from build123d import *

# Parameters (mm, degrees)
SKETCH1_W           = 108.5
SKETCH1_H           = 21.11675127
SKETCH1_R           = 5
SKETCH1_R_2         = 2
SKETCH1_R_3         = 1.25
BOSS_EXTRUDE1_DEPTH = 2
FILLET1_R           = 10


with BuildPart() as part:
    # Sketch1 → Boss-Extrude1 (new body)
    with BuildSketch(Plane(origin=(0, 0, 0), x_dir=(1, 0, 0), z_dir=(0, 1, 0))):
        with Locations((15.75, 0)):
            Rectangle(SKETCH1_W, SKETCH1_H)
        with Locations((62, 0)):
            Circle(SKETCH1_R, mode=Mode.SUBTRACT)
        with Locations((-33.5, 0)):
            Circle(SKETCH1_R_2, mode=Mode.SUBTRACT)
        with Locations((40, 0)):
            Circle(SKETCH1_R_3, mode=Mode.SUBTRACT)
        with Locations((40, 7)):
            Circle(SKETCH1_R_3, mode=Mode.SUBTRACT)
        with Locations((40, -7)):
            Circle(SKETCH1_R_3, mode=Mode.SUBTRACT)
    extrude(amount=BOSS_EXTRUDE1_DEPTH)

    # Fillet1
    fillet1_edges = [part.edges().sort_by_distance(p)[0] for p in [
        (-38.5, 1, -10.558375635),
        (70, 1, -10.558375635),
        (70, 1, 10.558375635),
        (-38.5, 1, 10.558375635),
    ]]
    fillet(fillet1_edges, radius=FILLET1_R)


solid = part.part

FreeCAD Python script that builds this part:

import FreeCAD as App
import Part
import Sketcher
Q = App.Units.Quantity


def edges_at(feature, points):
    """Names of the edges that pass closest to the given points."""
    edges = feature.Shape.Edges
    near = lambda p: min(range(len(edges)), key=lambda i: edges[i].distToShape(Part.Vertex(*p))[0])
    return sorted({f"Edge{near(p) + 1}" for p in points})


def add_polygon(sketch, points):
    """Adds a closed chain of lines whose ends are joined by coincident constraints."""
    first, n = sketch.GeometryCount, len(points)
    for a, b in zip(points, points[1:] + points[:1]):
        sketch.addGeometry(Part.LineSegment(App.Vector(*a, 0), App.Vector(*b, 0)), False)
    for i in range(n):
        sketch.addConstraint(Sketcher.Constraint("Coincident", first + i, 2, first + (i + 1) % n, 1))

doc = App.newDocument("Part")
body = doc.addObject("PartDesign::Body", "Body")

# Sketch on XZ plane
sketch1 = body.newObject("Sketcher::SketchObject", "Sketch")
sketch1.AttachmentSupport = (doc.getObject("XZ_Plane"), [""])
sketch1.MapMode = "FlatFace"
add_polygon(sketch1, [(-38.5, -10.6), (-38.5, 10.6), (70, 10.6), (70, -10.6)])  # lines 0-3
sketch1.addGeometry(Part.Circle(App.Vector(40, 7, 0), App.Vector(0, 0, 1), 1.2), False)  # 4
sketch1.addGeometry(Part.Circle(App.Vector(-33.5, 0, 0), App.Vector(0, 0, 1), 2), False)  # 5
sketch1.addGeometry(Part.Circle(App.Vector(40, 0, 0), App.Vector(0, 0, 1), 1.2), False)  # 6
sketch1.addGeometry(Part.Circle(App.Vector(62, 0, 0), App.Vector(0, 0, 1), 5), False)  # 7
sketch1.addGeometry(Part.Circle(App.Vector(40, -7, 0), App.Vector(0, 0, 1), 1.2), False)  # 8
sketch1.addConstraint([
    Sketcher.Constraint("Vertical", 0),
    Sketcher.Constraint("Horizontal", 1),
    Sketcher.Constraint("Vertical", 2),
    Sketcher.Constraint("Horizontal", 3),
    Sketcher.Constraint("Equal", 4, 6),
    Sketcher.Constraint("Equal", 6, 8),
    Sketcher.Constraint("Symmetric", 4, 3, 8, 3, -1),
    Sketcher.Constraint("PointOnObject", 5, 3, -1),
    Sketcher.Constraint("PointOnObject", 6, 3, -1),
    Sketcher.Constraint("PointOnObject", 7, 3, -1),
    Sketcher.Constraint("Vertical", 4, 3, 6, 3),
    Sketcher.Constraint("Diameter", 5, Q("4 mm")),
    Sketcher.Constraint("Diameter", 7, Q("10 mm")),
    Sketcher.Constraint("Diameter", 4, Q("2.5 mm")),
    Sketcher.Constraint("DistanceX", 1, 1, 1, 2, Q("108.5 mm")),
    Sketcher.Constraint("DistanceX", -1, 1, 4, 3, Q("40 mm")),
    Sketcher.Constraint("DistanceY", -1, 1, 4, 3, Q("7 mm")),
    Sketcher.Constraint("DistanceX", -1, 1, 7, 3, Q("62 mm")),
    Sketcher.Constraint("DistanceX", -1, 1, 1, 2, Q("70 mm")),
    Sketcher.Constraint("DistanceX", 0, 2, 5, 3, Q("5 mm")),
    Sketcher.Constraint("DistanceY", 0, 1, 0, 2, Q("21.116751 mm")),
    Sketcher.Constraint("DistanceY", -1, 1, 0, 2, Q("10.558376 mm")),
])
pad1 = body.newObject("PartDesign::Pad", "Pad")
pad1.Profile = sketch1
pad1.Length = 2
pad1.Reversed = True
doc.recompute()

fillet = body.newObject("PartDesign::Fillet", "Fillet")
fillet.Base = (pad1, edges_at(pad1, [
    (-38.5, 1, -10.558),
    (70, 1, -10.558),
    (70, 1, 10.558),
    (-38.5, 1, 10.558),
]))
fillet.Radius = 10

doc.recompute()
